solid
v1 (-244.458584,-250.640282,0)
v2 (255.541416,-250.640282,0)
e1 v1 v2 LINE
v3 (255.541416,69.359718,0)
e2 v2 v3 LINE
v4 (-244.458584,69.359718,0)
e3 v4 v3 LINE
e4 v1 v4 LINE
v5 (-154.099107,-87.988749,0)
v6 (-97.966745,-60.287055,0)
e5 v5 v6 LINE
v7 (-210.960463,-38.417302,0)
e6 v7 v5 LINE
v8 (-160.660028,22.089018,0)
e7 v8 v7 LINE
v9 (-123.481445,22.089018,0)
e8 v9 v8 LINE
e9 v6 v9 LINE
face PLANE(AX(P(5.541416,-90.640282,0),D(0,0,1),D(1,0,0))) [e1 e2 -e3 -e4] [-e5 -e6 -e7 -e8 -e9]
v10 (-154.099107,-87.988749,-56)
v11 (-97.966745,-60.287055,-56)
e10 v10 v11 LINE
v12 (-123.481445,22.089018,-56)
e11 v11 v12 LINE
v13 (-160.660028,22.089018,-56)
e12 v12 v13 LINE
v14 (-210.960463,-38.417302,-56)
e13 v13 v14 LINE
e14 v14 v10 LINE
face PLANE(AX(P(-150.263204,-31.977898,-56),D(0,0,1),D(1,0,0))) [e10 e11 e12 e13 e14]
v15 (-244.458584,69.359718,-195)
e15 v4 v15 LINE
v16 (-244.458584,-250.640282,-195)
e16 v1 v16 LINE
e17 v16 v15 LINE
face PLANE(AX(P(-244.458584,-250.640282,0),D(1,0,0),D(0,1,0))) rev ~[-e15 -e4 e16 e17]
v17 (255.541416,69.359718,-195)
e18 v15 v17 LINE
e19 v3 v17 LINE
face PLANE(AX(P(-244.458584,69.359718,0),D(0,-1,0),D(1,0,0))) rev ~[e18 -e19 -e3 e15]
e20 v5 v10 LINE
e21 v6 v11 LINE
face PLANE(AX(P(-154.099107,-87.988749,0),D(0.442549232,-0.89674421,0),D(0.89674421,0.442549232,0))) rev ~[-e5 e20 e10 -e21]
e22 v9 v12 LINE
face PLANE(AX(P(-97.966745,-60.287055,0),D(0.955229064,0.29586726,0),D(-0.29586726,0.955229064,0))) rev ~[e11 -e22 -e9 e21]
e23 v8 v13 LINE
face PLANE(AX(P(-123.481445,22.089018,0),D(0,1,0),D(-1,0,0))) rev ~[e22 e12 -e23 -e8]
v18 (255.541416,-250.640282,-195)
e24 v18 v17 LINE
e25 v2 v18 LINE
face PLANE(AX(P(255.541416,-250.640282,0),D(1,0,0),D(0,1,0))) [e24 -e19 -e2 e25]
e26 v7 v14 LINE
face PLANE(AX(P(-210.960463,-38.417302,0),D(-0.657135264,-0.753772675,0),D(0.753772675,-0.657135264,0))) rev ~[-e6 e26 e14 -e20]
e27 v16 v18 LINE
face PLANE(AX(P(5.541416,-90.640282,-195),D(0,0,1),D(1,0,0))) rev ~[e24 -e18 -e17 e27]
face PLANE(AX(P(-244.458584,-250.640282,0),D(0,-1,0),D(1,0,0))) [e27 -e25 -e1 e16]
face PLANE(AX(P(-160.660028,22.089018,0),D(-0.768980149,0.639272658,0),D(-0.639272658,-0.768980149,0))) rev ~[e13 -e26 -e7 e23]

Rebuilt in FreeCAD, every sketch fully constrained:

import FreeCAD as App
import Part
import Sketcher

V = App.Vector


def add_polygon(sketch, points):
    """Adds a closed chain of lines whose ends are joined by coincident constraints."""
    first, n = sketch.GeometryCount, len(points)
    for a, b in zip(points, points[1:] + points[:1]):
        sketch.addGeometry(Part.LineSegment(App.Vector(*a, 0), App.Vector(*b, 0)), False)
    for i in range(n):
        sketch.addConstraint(Sketcher.Constraint("Coincident", first + i, 2, first + (i + 1) % n, 1))

doc = App.newDocument("Part")
body = doc.addObject("PartDesign::Body", "Body")

# Sketch on XY plane
sketch1 = body.newObject("Sketcher::SketchObject", "Sketch")
sketch1.AttachmentSupport = (doc.getObject("XY_Plane"), [""])
sketch1.MapMode = "FlatFace"
add_polygon(sketch1, [(-244, 69), (-244, -251), (256, -251), (256, 69)])  # lines 0-3
sketch1.addConstraint([
    Sketcher.Constraint("Vertical", 0),
    Sketcher.Constraint("Horizontal", 1),
    Sketcher.Constraint("Vertical", 2),
    Sketcher.Constraint("Horizontal", 3),
    Sketcher.Constraint("DistanceX", 1, 1, 1, 2, 500.0),
    Sketcher.Constraint("DistanceY", 0, 2, 0, 1, 320.0),
    Sketcher.Constraint("DistanceY", -1, 1, 2, 2, 69.359718),
    Sketcher.Constraint("DistanceX", 0, 2, -1, 1, 244.458584),
])
pad1 = body.newObject("PartDesign::Pad", "Pad")
pad1.Profile = sketch1
pad1.Length = 195
pad1.Reversed = True

# Sketch on XY plane
sketch2 = body.newObject("Sketcher::SketchObject", "Sketch001")
sketch2.AttachmentSupport = (doc.getObject("XY_Plane"), [""])
sketch2.MapMode = "FlatFace"
add_polygon(sketch2, [(-123, 22), (-161, 22), (-211, -38), (-154, -88), (-98, -60)])  # lines 0-4
sketch2.addConstraint([
    Sketcher.Constraint("Horizontal", 0),
    Sketcher.Constraint("DistanceX", 4, 2, 3, 2, 25.5147),
    Sketcher.Constraint("Distance", 1, 78.683852),
    Sketcher.Constraint("DistanceX", 0, 2, 0, 1, 37.178583),
    Sketcher.Constraint("DistanceX", 0, 2, -1, 1, 160.660028),
    Sketcher.Constraint("DistanceY", 2, 2, -1, 1, 87.988749),
    Sketcher.Constraint("DistanceY", 1, 2, 0, 2, 60.50632),
    Sketcher.Constraint("DistanceX", 0, 2, 2, 2, 6.560921),
    Sketcher.Constraint("Distance", 2, 75.435682),
    Sketcher.Constraint("Distance", 3, 62.595734),
])
pocket1 = body.newObject("PartDesign::Pocket", "Pocket")
pocket1.Profile = sketch2
pocket1.Length = 56

doc.recompute()
